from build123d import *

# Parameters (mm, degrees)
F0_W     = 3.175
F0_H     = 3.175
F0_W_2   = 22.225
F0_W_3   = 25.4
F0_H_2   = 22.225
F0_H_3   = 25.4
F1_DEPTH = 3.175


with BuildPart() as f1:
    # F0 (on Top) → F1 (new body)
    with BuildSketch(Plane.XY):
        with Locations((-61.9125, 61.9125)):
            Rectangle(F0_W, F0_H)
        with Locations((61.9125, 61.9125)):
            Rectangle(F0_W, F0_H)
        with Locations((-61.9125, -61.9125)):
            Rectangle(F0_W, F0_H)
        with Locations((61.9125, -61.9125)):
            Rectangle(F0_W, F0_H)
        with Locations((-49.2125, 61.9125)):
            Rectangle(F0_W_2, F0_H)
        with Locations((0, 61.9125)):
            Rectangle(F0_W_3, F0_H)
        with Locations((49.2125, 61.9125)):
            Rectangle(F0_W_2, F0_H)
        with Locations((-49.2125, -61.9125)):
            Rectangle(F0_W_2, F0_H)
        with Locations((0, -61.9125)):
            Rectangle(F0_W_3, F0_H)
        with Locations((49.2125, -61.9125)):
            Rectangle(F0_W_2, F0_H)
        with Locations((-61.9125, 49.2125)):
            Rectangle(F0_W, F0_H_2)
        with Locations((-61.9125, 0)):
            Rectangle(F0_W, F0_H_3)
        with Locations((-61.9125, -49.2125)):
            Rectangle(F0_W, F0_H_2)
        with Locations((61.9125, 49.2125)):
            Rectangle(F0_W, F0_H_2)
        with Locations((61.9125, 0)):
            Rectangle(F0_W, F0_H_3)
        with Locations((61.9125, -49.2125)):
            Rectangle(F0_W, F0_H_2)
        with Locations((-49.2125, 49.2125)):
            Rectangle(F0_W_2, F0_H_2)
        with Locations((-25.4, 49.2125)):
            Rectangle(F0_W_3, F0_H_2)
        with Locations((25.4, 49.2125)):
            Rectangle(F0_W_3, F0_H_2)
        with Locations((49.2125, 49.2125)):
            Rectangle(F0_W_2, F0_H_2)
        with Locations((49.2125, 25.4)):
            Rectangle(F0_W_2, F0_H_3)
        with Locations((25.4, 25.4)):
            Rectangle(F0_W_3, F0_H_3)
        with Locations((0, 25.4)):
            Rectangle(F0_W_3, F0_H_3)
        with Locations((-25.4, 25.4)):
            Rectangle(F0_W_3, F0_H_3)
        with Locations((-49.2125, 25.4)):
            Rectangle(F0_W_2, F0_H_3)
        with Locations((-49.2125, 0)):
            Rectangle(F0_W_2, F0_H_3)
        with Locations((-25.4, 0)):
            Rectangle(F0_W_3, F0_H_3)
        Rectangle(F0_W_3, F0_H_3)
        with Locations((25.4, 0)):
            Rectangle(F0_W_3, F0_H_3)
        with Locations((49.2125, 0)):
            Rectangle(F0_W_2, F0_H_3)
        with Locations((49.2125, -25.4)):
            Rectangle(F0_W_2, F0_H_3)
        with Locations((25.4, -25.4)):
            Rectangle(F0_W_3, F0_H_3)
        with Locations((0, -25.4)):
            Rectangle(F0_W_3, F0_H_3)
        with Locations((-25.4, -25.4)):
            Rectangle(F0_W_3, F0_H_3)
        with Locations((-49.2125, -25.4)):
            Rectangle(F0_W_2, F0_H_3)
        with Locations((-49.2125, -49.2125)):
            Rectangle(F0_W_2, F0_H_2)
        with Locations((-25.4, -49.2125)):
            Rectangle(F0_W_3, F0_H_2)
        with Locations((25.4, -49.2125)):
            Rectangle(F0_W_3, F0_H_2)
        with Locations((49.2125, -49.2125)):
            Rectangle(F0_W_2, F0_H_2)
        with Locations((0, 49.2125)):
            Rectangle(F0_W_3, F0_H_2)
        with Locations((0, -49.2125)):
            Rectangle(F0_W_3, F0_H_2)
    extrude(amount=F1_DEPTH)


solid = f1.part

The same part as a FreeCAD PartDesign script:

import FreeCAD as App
import Part
import Sketcher

V = App.Vector
Q = App.Units.Quantity

doc = App.newDocument("Part")
body = doc.addObject("PartDesign::Body", "Body")

# Sketch on XY plane
sketch1 = body.newObject("Sketcher::SketchObject", "Sketch")
sketch1.AttachmentSupport = (doc.getObject("XY_Plane"), [""])
sketch1.MapMode = "FlatFace"
sketch1.addGeometry(Part.LineSegment(V(-63.5, 63.5, 0), V(-63.5, 38.1, 0)), False)
sketch1.addGeometry(Part.LineSegment(V(-63.5, 38.1, 0), V(-60.3, 38.1, 0)), False)
sketch1.addGeometry(Part.LineSegment(V(-60.3, 38.1, 0), V(-60.3, 12.7, 0)), False)
sketch1.addGeometry(Part.LineSegment(V(-60.3, 12.7, 0), V(-63.5, 12.7, 0)), False)
sketch1.addGeometry(Part.LineSegment(V(-63.5, 12.7, 0), V(-63.5, -12.7, 0)), False)
sketch1.addGeometry(Part.LineSegment(V(-63.5, -12.7, 0), V(-60.3, -12.7, 0)), False)
sketch1.addGeometry(Part.LineSegment(V(-60.3, -12.7, 0), V(-60.3, -38.1, 0)), False)
sketch1.addGeometry(Part.LineSegment(V(-60.3, -38.1, 0), V(-63.5, -38.1, 0)), False)
sketch1.addGeometry(Part.LineSegment(V(-63.5, -38.1, 0), V(-63.5, -63.5, 0)), False)
sketch1.addGeometry(Part.LineSegment(V(-63.5, -63.5, 0), V(-38.1, -63.5, 0)), False)
sketch1.addGeometry(Part.LineSegment(V(-38.1, -63.5, 0), V(-38.1, -60.3, 0)), False)
sketch1.addGeometry(Part.LineSegment(V(-38.1, -60.3, 0), V(-12.7, -60.3, 0)), False)
sketch1.addGeometry(Part.LineSegment(V(-12.7, -60.3, 0), V(-12.7, -63.5, 0)), False)
sketch1.addGeometry(Part.LineSegment(V(-12.7, -63.5, 0), V(12.7, -63.5, 0)), False)
sketch1.addGeometry(Part.LineSegment(V(12.7, -63.5, 0), V(12.7, -60.3, 0)), False)
sketch1.addGeometry(Part.LineSegment(V(12.7, -60.3, 0), V(38.1, -60.3, 0)), False)
sketch1.addGeometry(Part.LineSegment(V(38.1, -60.3, 0), V(38.1, -63.5, 0)), False)
sketch1.addGeometry(Part.LineSegment(V(38.1, -63.5, 0), V(63.5, -63.5, 0)), False)
sketch1.addGeometry(Part.LineSegment(V(63.5, -63.5, 0), V(63.5, -38.1, 0)), False)
sketch1.addGeometry(Part.LineSegment(V(63.5, -38.1, 0), V(60.3, -38.1, 0)), False)
sketch1.addGeometry(Part.LineSegment(V(60.3, -38.1, 0), V(60.3, -12.7, 0)), False)
sketch1.addGeometry(Part.LineSegment(V(60.3, -12.7, 0), V(63.5, -12.7, 0)), False)
sketch1.addGeometry(Part.LineSegment(V(63.5, -12.7, 0), V(63.5, 12.7, 0)), False)
sketch1.addGeometry(Part.LineSegment(V(63.5, 12.7, 0), V(60.3, 12.7, 0)), False)
sketch1.addGeometry(Part.LineSegment(V(60.3, 12.7, 0), V(60.3, 38.1, 0)), False)
sketch1.addGeometry(Part.LineSegment(V(60.3, 38.1, 0), V(63.5, 38.1, 0)), False)
sketch1.addGeometry(Part.LineSegment(V(63.5, 38.1, 0), V(63.5, 63.5, 0)), False)
sketch1.addGeometry(Part.LineSegment(V(63.5, 63.5, 0), V(38.1, 63.5, 0)), False)
sketch1.addGeometry(Part.LineSegment(V(38.1, 63.5, 0), V(38.1, 60.3, 0)), False)
sketch1.addGeometry(Part.LineSegment(V(38.1, 60.3, 0), V(12.7, 60.3, 0)), False)
sketch1.addGeometry(Part.LineSegment(V(12.7, 60.3, 0), V(12.7, 63.5, 0)), False)
sketch1.addGeometry(Part.LineSegment(V(12.7, 63.5, 0), V(-12.7, 63.5, 0)), False)
sketch1.addGeometry(Part.LineSegment(V(-12.7, 63.5, 0), V(-12.7, 60.3, 0)), False)
sketch1.addGeometry(Part.LineSegment(V(-12.7, 60.3, 0), V(-38.1, 60.3, 0)), False)
sketch1.addGeometry(Part.LineSegment(V(-38.1, 60.3, 0), V(-38.1, 63.5, 0)), False)
sketch1.addGeometry(Part.LineSegment(V(-38.1, 63.5, 0), V(-63.5, 63.5, 0)), False)
sketch1.addConstraint(Sketcher.Constraint("Coincident", 0, 2, 1, 1))
sketch1.addConstraint(Sketcher.Constraint("Coincident", 1, 2, 2, 1))
sketch1.addConstraint(Sketcher.Constraint("Coincident", 2, 2, 3, 1))
sketch1.addConstraint(Sketcher.Constraint("Coincident", 3, 2, 4, 1))
sketch1.addConstraint(Sketcher.Constraint("Coincident", 4, 2, 5, 1))
sketch1.addConstraint(Sketcher.Constraint("Coincident", 5, 2, 6, 1))
sketch1.addConstraint(Sketcher.Constraint("Coincident", 6, 2, 7, 1))
sketch1.addConstraint(Sketcher.Constraint("Coincident", 7, 2, 8, 1))
sketch1.addConstraint(Sketcher.Constraint("Coincident", 8, 2, 9, 1))
sketch1.addConstraint(Sketcher.Constraint("Coincident", 9, 2, 10, 1))
sketch1.addConstraint(Sketcher.Constraint("Coincident", 10, 2, 11, 1))
sketch1.addConstraint(Sketcher.Constraint("Coincident", 11, 2, 12, 1))
sketch1.addConstraint(Sketcher.Constraint("Coincident", 12, 2, 13, 1))
sketch1.addConstraint(Sketcher.Constraint("Coincident", 13, 2, 14, 1))
sketch1.addConstraint(Sketcher.Constraint("Coincident", 14, 2, 15, 1))
sketch1.addConstraint(Sketcher.Constraint("Coincident", 15, 2, 16, 1))
sketch1.addConstraint(Sketcher.Constraint("Coincident", 16, 2, 17, 1))
sketch1.addConstraint(Sketcher.Constraint("Coincident", 17, 2, 18, 1))
sketch1.addConstraint(Sketcher.Constraint("Coincident", 18, 2, 19, 1))
sketch1.addConstraint(Sketcher.Constraint("Coincident", 19, 2, 20, 1))
sketch1.addConstraint(Sketcher.Constraint("Coincident", 20, 2, 21, 1))
sketch1.addConstraint(Sketcher.Constraint("Coincident", 21, 2, 22, 1))
sketch1.addConstraint(Sketcher.Constraint("Coincident", 22, 2, 23, 1))
sketch1.addConstraint(Sketcher.Constraint("Coincident", 23, 2, 24, 1))
sketch1.addConstraint(Sketcher.Constraint("Coincident", 24, 2, 25, 1))
sketch1.addConstraint(Sketcher.Constraint("Coincident", 25, 2, 26, 1))
sketch1.addConstraint(Sketcher.Constraint("Coincident", 26, 2, 27, 1))
sketch1.addConstraint(Sketcher.Constraint("Coincident", 27, 2, 28, 1))
sketch1.addConstraint(Sketcher.Constraint("Coincident", 28, 2, 29, 1))
sketch1.addConstraint(Sketcher.Constraint("Coincident", 29, 2, 30, 1))
sketch1.addConstraint(Sketcher.Constraint("Coincident", 30, 2, 31, 1))
sketch1.addConstraint(Sketcher.Constraint("Coincident", 31, 2, 32, 1))
sketch1.addConstraint(Sketcher.Constraint("Coincident", 32, 2, 33, 1))
sketch1.addConstraint(Sketcher.Constraint("Coincident", 33, 2, 34, 1))
sketch1.addConstraint(Sketcher.Constraint("Coincident", 34, 2, 35, 1))
sketch1.addConstraint(Sketcher.Constraint("Coincident", 35, 2, 0, 1))
sketch1.addConstraint(Sketcher.Constraint("Vertical", 0))
sketch1.addConstraint(Sketcher.Constraint("Horizontal", 1))
sketch1.addConstraint(Sketcher.Constraint("Vertical", 2))
sketch1.addConstraint(Sketcher.Constraint("Horizontal", 3))
sketch1.addConstraint(Sketcher.Constraint("Vertical", 4))
sketch1.addConstraint(Sketcher.Constraint("Horizontal", 5))
sketch1.addConstraint(Sketcher.Constraint("Vertical", 6))
sketch1.addConstraint(Sketcher.Constraint("Horizontal", 7))
sketch1.addConstraint(Sketcher.Constraint("Vertical", 8))
sketch1.addConstraint(Sketcher.Constraint("Horizontal", 9))
sketch1.addConstraint(Sketcher.Constraint("Vertical", 10))
sketch1.addConstraint(Sketcher.Constraint("Horizontal", 11))
sketch1.addConstraint(Sketcher.Constraint("Vertical", 12))
sketch1.addConstraint(Sketcher.Constraint("Horizontal", 13))
sketch1.addConstraint(Sketcher.Constraint("Vertical", 14))
sketch1.addConstraint(Sketcher.Constraint("Horizontal", 15))
sketch1.addConstraint(Sketcher.Constraint("Vertical", 16))
sketch1.addConstraint(Sketcher.Constraint("Horizontal", 17))
sketch1.addConstraint(Sketcher.Constraint("Vertical", 18))
sketch1.addConstraint(Sketcher.Constraint("Horizontal", 19))
sketch1.addConstraint(Sketcher.Constraint("Vertical", 20))
sketch1.addConstraint(Sketcher.Constraint("Horizontal", 21))
sketch1.addConstraint(Sketcher.Constraint("Vertical", 22))
sketch1.addConstraint(Sketcher.Constraint("Horizontal", 23))
sketch1.addConstraint(Sketcher.Constraint("Vertical", 24))
sketch1.addConstraint(Sketcher.Constraint("Horizontal", 25))
sketch1.addConstraint(Sketcher.Constraint("Vertical", 26))
sketch1.addConstraint(Sketcher.Constraint("Horizontal", 27))
sketch1.addConstraint(Sketcher.Constraint("Vertical", 28))
sketch1.addConstraint(Sketcher.Constraint("Horizontal", 29))
sketch1.addConstraint(Sketcher.Constraint("Vertical", 30))
sketch1.addConstraint(Sketcher.Constraint("Horizontal", 31))
sketch1.addConstraint(Sketcher.Constraint("Vertical", 32))
sketch1.addConstraint(Sketcher.Constraint("Horizontal", 33))
sketch1.addConstraint(Sketcher.Constraint("Vertical", 34))
sketch1.addConstraint(Sketcher.Constraint("Horizontal", 35))
sketch1.addConstraint(Sketcher.Constraint("Symmetric", 0, 2, 18, 2, -1, 1))
sketch1.addConstraint(Sketcher.Constraint("Symmetric", 2, 2, 20, 2, -1, 1))
sketch1.addConstraint(Sketcher.Constraint("Symmetric", 4, 2, 22, 2, -1, 1))
sketch1.addConstraint(Sketcher.Constraint("Symmetric", 6, 2, 24, 2, -1, 1))
sketch1.addConstraint(Sketcher.Constraint("Symmetric", 8, 2, 26, 2, -1, 1))
sketch1.addConstraint(Sketcher.Constraint("Symmetric", 10, 2, 28, 2, -1, 1))
sketch1.addConstraint(Sketcher.Constraint("Symmetric", 12, 2, 30, 2, -1, 1))
sketch1.addConstraint(Sketcher.Constraint("Symmetric", 14, 2, 32, 2, -1, 1))
sketch1.addConstraint(Sketcher.Constraint("Symmetric", 16, 2, 34, 2, -1, 1))
sketch1.addConstraint(Sketcher.Constraint("Symmetric", 11, 2, 14, 2, -2))
sketch1.addConstraint(Sketcher.Constraint("Symmetric", 9, 2, 16, 2, -2))
sketch1.addConstraint(Sketcher.Constraint("Symmetric", 7, 2, 18, 2, -2))
sketch1.addConstraint(Sketcher.Constraint("Symmetric", 5, 2, 20, 2, -2))
sketch1.addConstraint(Sketcher.Constraint("Horizontal", 9, 2, 12, 2))
sketch1.addConstraint(Sketcher.Constraint("Vertical", 0, 2, 3, 2))
sketch1.addConstraint(Sketcher.Constraint("Equal", 9, 11))
sketch1.addConstraint(Sketcher.Constraint("Equal", 11, 13))
sketch1.addConstraint(Sketcher.Constraint("Equal", 35, 0))
sketch1.addConstraint(Sketcher.Constraint("Equal", 0, 2))
sketch1.addConstraint(Sketcher.Constraint("Equal", 2, 4))
sketch1.addConstraint(Sketcher.Constraint("Equal", 25, 10))
sketch1.addConstraint(Sketcher.Constraint("DistanceX", 9, 1, 9, 2, Q("1 in")))
sketch1.addConstraint(Sketcher.Constraint("DistanceX", 1, 1, 1, 2, Q("0.125 in")))
pad1 = body.newObject("PartDesign::Pad", "Pad")
pad1.Profile = sketch1
pad1.Length = Q("0.125 in")

doc.recompute()
